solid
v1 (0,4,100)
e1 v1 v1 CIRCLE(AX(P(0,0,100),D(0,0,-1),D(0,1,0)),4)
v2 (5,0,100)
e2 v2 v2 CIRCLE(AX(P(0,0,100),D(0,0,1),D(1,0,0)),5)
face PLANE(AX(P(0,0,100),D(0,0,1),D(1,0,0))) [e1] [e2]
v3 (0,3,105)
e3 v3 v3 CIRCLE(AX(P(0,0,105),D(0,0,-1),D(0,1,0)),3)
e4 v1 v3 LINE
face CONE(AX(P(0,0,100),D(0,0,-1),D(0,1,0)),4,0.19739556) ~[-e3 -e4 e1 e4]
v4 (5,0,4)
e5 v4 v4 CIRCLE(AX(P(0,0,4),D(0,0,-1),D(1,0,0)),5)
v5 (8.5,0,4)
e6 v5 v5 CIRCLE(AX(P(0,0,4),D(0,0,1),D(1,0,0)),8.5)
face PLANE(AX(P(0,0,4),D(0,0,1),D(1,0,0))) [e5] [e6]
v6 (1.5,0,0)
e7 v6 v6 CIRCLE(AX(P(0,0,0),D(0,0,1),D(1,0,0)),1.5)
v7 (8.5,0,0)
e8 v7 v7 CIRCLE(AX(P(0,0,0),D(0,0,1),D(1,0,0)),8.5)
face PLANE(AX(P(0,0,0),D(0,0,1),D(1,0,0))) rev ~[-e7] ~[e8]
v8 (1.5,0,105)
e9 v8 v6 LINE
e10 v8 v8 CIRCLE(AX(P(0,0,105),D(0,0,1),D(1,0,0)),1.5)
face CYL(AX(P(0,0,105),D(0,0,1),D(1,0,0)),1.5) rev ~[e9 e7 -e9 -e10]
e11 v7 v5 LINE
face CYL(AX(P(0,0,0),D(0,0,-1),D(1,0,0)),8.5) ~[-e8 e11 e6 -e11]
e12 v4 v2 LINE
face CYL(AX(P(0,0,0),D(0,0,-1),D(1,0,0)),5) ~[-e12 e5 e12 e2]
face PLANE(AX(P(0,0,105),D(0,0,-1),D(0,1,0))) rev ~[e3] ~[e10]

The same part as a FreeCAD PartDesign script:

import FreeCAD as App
import Part
import Sketcher
from FreeCAD import Vector
Q = App.Units.Quantity


def add_polygon(sketch, points):
    """Adds a closed chain of lines whose ends are joined by coincident constraints."""
    first, n = sketch.GeometryCount, len(points)
    for a, b in zip(points, points[1:] + points[:1]):
        sketch.addGeometry(Part.LineSegment(App.Vector(*a, 0), App.Vector(*b, 0)), False)
    for i in range(n):
        sketch.addConstraint(Sketcher.Constraint("Coincident", first + i, 2, first + (i + 1) % n, 1))

doc = App.newDocument("Part")
body = doc.addObject("PartDesign::Body", "Body")

# Sketch on XY plane
sketch1 = body.newObject("Sketcher::SketchObject", "Sketch")
sketch1.AttachmentSupport = (doc.getObject("XY_Plane"), [""])
sketch1.MapMode = "FlatFace"
sketch1.addGeometry(Part.Circle(Vector(0, 0, 0), Vector(0, 0, 1), 8), False)
sketch1.addConstraint([
    Sketcher.Constraint("Coincident", 0, 3, -1, 1),
    Sketcher.Constraint("Diameter", 0, Q("17 mm")),
])
pad1 = body.newObject("PartDesign::Pad", "Pad")
pad1.Profile = sketch1
pad1.Length = 4

# Sketch on XY plane
sketch2 = body.newObject("Sketcher::SketchObject", "Sketch001")
sketch2.AttachmentSupport = (doc.getObject("XY_Plane"), [""])
sketch2.MapMode = "FlatFace"
sketch2.addGeometry(Part.Circle(Vector(0, 0, 0), Vector(0, 0, 1), 5), False)
sketch2.addConstraint([
    Sketcher.Constraint("Coincident", 0, 3, -1, 1),
    Sketcher.Constraint("Diameter", 0, Q("10 mm")),
])
pad2 = body.newObject("PartDesign::Pad", "Pad001")
pad2.Profile = sketch2
pad2.Length = 100

# Sketch on YZ plane
sketch3 = body.newObject("Sketcher::SketchObject", "Sketch002")
sketch3.AttachmentSupport = (doc.getObject("YZ_Plane"), [""])
sketch3.MapMode = "FlatFace"
add_polygon(sketch3, [(3, 105), (0, 105), (0, 100), (4, 100)])  # lines 0-3
sketch3.addConstraint([
    Sketcher.Constraint("Horizontal", 0),
    Sketcher.Constraint("Vertical", 1),
    Sketcher.Constraint("Horizontal", 2),
    Sketcher.Constraint("PointOnObject", 0, 2, -2),
    Sketcher.Constraint("DistanceX", 0, 2, 0, 1, Q("3 mm")),
    Sketcher.Constraint("DistanceX", 2, 1, 2, 2, Q("4 mm")),
    Sketcher.Constraint("DistanceY", 1, 2, 1, 1, Q("5 mm")),
    Sketcher.Constraint("DistanceY", -1, 1, 0, 2, Q("105 mm")),
])
revolution = body.newObject("PartDesign::Revolution", "Revolution")
revolution.Profile = sketch3
revolution.ReferenceAxis = (sketch3, ["V_Axis"])
revolution.Angle = 360

# Sketch on XY plane
sketch4 = body.newObject("Sketcher::SketchObject", "Sketch003")
sketch4.AttachmentSupport = (doc.getObject("XY_Plane"), [""])
sketch4.MapMode = "FlatFace"
sketch4.AttachmentOffset = App.Placement(Vector(0, 0, 105), App.Rotation())
sketch4.addGeometry(Part.Circle(Vector(0, 0, 0), Vector(0, 0, 1), 1.5), False)
sketch4.addConstraint([
    Sketcher.Constraint("Coincident", 0, 3, -1, 1),
    Sketcher.Constraint("Diameter", 0, Q("3 mm")),
])
pocket1 = body.newObject("PartDesign::Pocket", "Pocket")
pocket1.Profile = sketch4
pocket1.Length = 123

doc.recompute()
